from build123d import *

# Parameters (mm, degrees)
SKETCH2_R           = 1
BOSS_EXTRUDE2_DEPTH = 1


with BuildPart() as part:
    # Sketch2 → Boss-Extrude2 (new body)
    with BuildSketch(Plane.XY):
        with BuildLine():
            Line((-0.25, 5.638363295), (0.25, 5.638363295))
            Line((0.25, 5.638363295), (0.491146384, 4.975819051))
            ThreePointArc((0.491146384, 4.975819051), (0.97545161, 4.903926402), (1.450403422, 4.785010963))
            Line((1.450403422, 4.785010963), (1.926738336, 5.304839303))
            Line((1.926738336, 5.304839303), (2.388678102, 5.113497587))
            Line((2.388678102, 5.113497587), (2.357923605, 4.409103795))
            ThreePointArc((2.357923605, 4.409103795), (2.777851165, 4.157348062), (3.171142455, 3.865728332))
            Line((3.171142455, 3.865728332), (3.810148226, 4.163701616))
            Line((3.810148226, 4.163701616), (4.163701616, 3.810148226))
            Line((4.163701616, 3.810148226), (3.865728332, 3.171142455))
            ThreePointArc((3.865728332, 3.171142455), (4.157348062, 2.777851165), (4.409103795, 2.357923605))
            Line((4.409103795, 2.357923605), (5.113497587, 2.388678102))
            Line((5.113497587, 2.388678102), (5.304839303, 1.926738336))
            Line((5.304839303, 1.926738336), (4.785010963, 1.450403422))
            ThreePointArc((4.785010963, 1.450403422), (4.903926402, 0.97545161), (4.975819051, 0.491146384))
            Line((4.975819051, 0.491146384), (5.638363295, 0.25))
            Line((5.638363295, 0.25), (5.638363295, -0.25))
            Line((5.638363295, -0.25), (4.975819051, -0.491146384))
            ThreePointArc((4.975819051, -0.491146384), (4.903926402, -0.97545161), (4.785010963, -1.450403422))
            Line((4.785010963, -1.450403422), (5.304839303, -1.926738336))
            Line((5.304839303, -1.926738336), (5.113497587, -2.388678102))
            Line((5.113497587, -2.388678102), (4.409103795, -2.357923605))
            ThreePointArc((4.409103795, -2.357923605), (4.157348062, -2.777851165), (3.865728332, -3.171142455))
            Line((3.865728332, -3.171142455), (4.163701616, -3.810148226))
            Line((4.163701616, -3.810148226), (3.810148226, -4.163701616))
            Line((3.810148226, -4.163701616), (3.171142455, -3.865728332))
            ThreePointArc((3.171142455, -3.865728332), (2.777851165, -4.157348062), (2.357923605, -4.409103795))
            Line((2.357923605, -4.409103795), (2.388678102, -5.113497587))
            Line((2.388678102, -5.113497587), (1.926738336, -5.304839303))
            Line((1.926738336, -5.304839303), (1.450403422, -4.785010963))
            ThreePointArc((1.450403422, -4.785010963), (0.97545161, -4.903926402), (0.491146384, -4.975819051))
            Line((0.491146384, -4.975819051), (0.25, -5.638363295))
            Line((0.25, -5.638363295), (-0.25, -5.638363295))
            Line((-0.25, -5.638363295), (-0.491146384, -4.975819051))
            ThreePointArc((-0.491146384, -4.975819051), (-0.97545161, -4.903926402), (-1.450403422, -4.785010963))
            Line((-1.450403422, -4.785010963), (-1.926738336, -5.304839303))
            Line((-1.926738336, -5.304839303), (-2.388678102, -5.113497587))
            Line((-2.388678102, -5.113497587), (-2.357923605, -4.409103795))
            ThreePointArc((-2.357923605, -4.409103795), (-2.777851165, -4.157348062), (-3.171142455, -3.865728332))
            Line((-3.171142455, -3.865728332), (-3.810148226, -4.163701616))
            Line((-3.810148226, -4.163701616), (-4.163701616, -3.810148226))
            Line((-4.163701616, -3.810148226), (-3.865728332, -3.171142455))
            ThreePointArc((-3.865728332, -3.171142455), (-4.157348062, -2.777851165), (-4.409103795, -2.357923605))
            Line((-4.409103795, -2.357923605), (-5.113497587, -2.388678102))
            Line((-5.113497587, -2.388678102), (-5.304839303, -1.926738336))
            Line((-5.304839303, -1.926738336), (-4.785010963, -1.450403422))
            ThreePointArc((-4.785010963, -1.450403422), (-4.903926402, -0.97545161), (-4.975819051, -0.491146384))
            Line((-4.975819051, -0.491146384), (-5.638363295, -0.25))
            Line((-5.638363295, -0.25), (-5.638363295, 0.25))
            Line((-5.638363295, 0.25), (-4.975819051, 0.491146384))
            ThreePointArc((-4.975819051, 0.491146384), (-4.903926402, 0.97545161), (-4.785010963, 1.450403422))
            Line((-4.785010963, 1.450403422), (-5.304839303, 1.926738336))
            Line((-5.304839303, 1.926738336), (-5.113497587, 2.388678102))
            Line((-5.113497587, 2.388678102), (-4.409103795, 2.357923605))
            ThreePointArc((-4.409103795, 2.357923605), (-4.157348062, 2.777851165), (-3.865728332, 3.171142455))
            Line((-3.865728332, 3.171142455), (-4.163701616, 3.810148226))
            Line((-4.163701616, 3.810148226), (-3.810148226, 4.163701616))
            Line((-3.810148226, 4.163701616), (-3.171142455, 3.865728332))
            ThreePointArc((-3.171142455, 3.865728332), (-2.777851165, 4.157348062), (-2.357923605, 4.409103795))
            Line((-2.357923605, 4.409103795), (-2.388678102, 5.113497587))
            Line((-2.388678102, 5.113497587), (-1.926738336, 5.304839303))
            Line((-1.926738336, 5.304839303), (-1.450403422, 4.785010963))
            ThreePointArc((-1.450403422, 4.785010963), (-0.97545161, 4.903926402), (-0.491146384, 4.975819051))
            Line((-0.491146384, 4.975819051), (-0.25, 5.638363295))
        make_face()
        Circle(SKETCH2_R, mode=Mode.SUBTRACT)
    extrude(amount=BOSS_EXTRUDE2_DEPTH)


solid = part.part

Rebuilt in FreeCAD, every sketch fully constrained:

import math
import FreeCAD as App
import Part
import Sketcher
from FreeCAD import Vector
Q = App.Units.Quantity

doc = App.newDocument("Part")
params = doc.addObject("Spreadsheet::Sheet", "Params")
for row, (alias, value) in enumerate([
    ("sketch1_diameter", "2 mm"),
    ("sketch1_radius", "5 mm"),
    ("sketch1_width", "0.5 mm"),
    ("sketch1_length", "0.5 mm"),
    ("pad1_length", "1 mm"),
], start=1):
    params.set(f"A{row}", alias)
    params.set(f"B{row}", "=" + value)
    params.setAlias(f"B{row}", alias)

body = doc.addObject("PartDesign::Body", "Body")

sketch1 = doc.addObject("Sketcher::SketchObject", "Sketch")
body.addObject(sketch1)
sketch1.AttachmentSupport = (doc.XY_Plane, [""])
sketch1.MapMode = "FlatFace"
sketch1.addGeometry([
    Part.LineSegment(Vector(0.25, 5.64, 0), Vector(-0.25, 5.64, 0)),
    Part.LineSegment(Vector(-0.25, 5.64, 0), Vector(-0.49, 4.98, 0)),
    Part.ArcOfCircle(Part.Circle(Vector(0, 0, 0), Vector(0, 0, 1), 5), math.radians(95.64), math.radians(106.86)),
    Part.LineSegment(Vector(-1.45, 4.79, 0), Vector(-1.93, 5.3, 0)),
    Part.LineSegment(Vector(-1.93, 5.3, 0), Vector(-2.39, 5.11, 0)),
    Part.LineSegment(Vector(-2.39, 5.11, 0), Vector(-2.36, 4.41, 0)),
    Part.ArcOfCircle(Part.Circle(Vector(0, 0, 0), Vector(0, 0, 1), 5), math.radians(118.14), math.radians(129.36)),
    Part.LineSegment(Vector(-3.17, 3.87, 0), Vector(-3.81, 4.16, 0)),
    Part.LineSegment(Vector(-3.81, 4.16, 0), Vector(-4.16, 3.81, 0)),
    Part.LineSegment(Vector(-4.16, 3.81, 0), Vector(-3.87, 3.17, 0)),
    Part.ArcOfCircle(Part.Circle(Vector(0, 0, 0), Vector(0, 0, 1), 5), math.radians(140.64), math.radians(151.86)),
    Part.LineSegment(Vector(-4.41, 2.36, 0), Vector(-5.11, 2.39, 0)),
    Part.LineSegment(Vector(-5.11, 2.39, 0), Vector(-5.3, 1.93, 0)),
    Part.LineSegment(Vector(-5.3, 1.93, 0), Vector(-4.79, 1.45, 0)),
    Part.ArcOfCircle(Part.Circle(Vector(0, 0, 0), Vector(0, 0, 1), 5), math.radians(163.14), math.radians(174.36)),
    Part.LineSegment(Vector(-4.98, 0.49, 0), Vector(-5.64, 0.25, 0)),
    Part.LineSegment(Vector(-5.64, 0.25, 0), Vector(-5.64, -0.25, 0)),
    Part.LineSegment(Vector(-5.64, -0.25, 0), Vector(-4.98, -0.49, 0)),
    Part.ArcOfCircle(Part.Circle(Vector(0, 0, 0), Vector(0, 0, 1), 5), math.radians(-174.36), math.radians(-163.14)),
    Part.LineSegment(Vector(-4.79, -1.45, 0), Vector(-5.3, -1.93, 0)),
    Part.LineSegment(Vector(-5.3, -1.93, 0), Vector(-5.11, -2.39, 0)),
    Part.LineSegment(Vector(-5.11, -2.39, 0), Vector(-4.41, -2.36, 0)),
    Part.ArcOfCircle(Part.Circle(Vector(0, 0, 0), Vector(0, 0, 1), 5), math.radians(-151.86), math.radians(-140.64)),
    Part.LineSegment(Vector(-3.87, -3.17, 0), Vector(-4.16, -3.81, 0)),
    Part.LineSegment(Vector(-4.16, -3.81, 0), Vector(-3.81, -4.16, 0)),
    Part.LineSegment(Vector(-3.81, -4.16, 0), Vector(-3.17, -3.87, 0)),
    Part.ArcOfCircle(Part.Circle(Vector(0, 0, 0), Vector(0, 0, 1), 5), math.radians(-129.36), math.radians(-118.14)),
    Part.LineSegment(Vector(-2.36, -4.41, 0), Vector(-2.39, -5.11, 0)),
    Part.LineSegment(Vector(-2.39, -5.11, 0), Vector(-1.93, -5.3, 0)),
    Part.LineSegment(Vector(-1.93, -5.3, 0), Vector(-1.45, -4.79, 0)),
    Part.ArcOfCircle(Part.Circle(Vector(0, 0, 0), Vector(0, 0, 1), 5), math.radians(-106.86), math.radians(-95.64)),
    Part.LineSegment(Vector(-0.49, -4.98, 0), Vector(-0.25, -5.64, 0)),
    Part.LineSegment(Vector(-0.25, -5.64, 0), Vector(0.25, -5.64, 0)),
    Part.LineSegment(Vector(0.25, -5.64, 0), Vector(0.49, -4.98, 0)),
    Part.ArcOfCircle(Part.Circle(Vector(0, 0, 0), Vector(0, 0, 1), 5), math.radians(-84.36), math.radians(-73.14)),
    Part.LineSegment(Vector(1.45, -4.79, 0), Vector(1.93, -5.3, 0)),
    Part.LineSegment(Vector(1.93, -5.3, 0), Vector(2.39, -5.11, 0)),
    Part.LineSegment(Vector(2.39, -5.11, 0), Vector(2.36, -4.41, 0)),
    Part.ArcOfCircle(Part.Circle(Vector(0, 0, 0), Vector(0, 0, 1), 5), math.radians(-61.86), math.radians(-50.64)),
    Part.LineSegment(Vector(3.17, -3.87, 0), Vector(3.81, -4.16, 0)),
    Part.LineSegment(Vector(3.81, -4.16, 0), Vector(4.16, -3.81, 0)),
    Part.LineSegment(Vector(4.16, -3.81, 0), Vector(3.87, -3.17, 0)),
    Part.ArcOfCircle(Part.Circle(Vector(0, 0, 0), Vector(0, 0, 1), 5), math.radians(-39.36), math.radians(-28.14)),
    Part.LineSegment(Vector(4.41, -2.36, 0), Vector(5.11, -2.39, 0)),
    Part.LineSegment(Vector(5.11, -2.39, 0), Vector(5.3, -1.93, 0)),
    Part.LineSegment(Vector(5.3, -1.93, 0), Vector(4.79, -1.45, 0)),
    Part.ArcOfCircle(Part.Circle(Vector(0, 0, 0), Vector(0, 0, 1), 5), math.radians(-16.86), math.radians(-5.64)),
    Part.LineSegment(Vector(4.98, -0.49, 0), Vector(5.64, -0.25, 0)),
    Part.LineSegment(Vector(5.64, -0.25, 0), Vector(5.64, 0.25, 0)),
    Part.LineSegment(Vector(5.64, 0.25, 0), Vector(4.98, 0.49, 0)),
    Part.ArcOfCircle(Part.Circle(Vector(0, 0, 0), Vector(0, 0, 1), 5), math.radians(5.64), math.radians(16.86)),
    Part.LineSegment(Vector(4.79, 1.45, 0), Vector(5.3, 1.93, 0)),
    Part.LineSegment(Vector(5.3, 1.93, 0), Vector(5.11, 2.39, 0)),
    Part.LineSegment(Vector(5.11, 2.39, 0), Vector(4.41, 2.36, 0)),
    Part.ArcOfCircle(Part.Circle(Vector(0, 0, 0), Vector(0, 0, 1), 5), math.radians(28.14), math.radians(39.36)),
    Part.LineSegment(Vector(3.87, 3.17, 0), Vector(4.16, 3.81, 0)),
    Part.LineSegment(Vector(4.16, 3.81, 0), Vector(3.81, 4.16, 0)),
    Part.LineSegment(Vector(3.81, 4.16, 0), Vector(3.17, 3.87, 0)),
    Part.ArcOfCircle(Part.Circle(Vector(0, 0, 0), Vector(0, 0, 1), 5), math.radians(50.64), math.radians(61.86)),
    Part.LineSegment(Vector(2.36, 4.41, 0), Vector(2.39, 5.11, 0)),
    Part.LineSegment(Vector(2.39, 5.11, 0), Vector(1.93, 5.3, 0)),
    Part.LineSegment(Vector(1.93, 5.3, 0), Vector(1.45, 4.79, 0)),
    Part.ArcOfCircle(Part.Circle(Vector(0, 0, 0), Vector(0, 0, 1), 5), math.radians(73.14), math.radians(84.36)),
    Part.LineSegment(Vector(0.49, 4.98, 0), Vector(0.25, 5.64, 0)),
    Part.Circle(Vector(0, 0, 0), Vector(0, 0, 1), 1),
], False)
sketch1.addConstraint([
    Sketcher.Constraint("Coincident", 0, 2, 1, 1),
    Sketcher.Constraint("Coincident", 1, 2, 2, 1),
    Sketcher.Constraint("Coincident", 2, 2, 3, 1),
    Sketcher.Constraint("Coincident", 3, 2, 4, 1),
    Sketcher.Constraint("Coincident", 4, 2, 5, 1),
    Sketcher.Constraint("Coincident", 5, 2, 6, 1),
    Sketcher.Constraint("Coincident", 6, 2, 7, 1),
    Sketcher.Constraint("Coincident", 7, 2, 8, 1),
    Sketcher.Constraint("Coincident", 8, 2, 9, 1),
    Sketcher.Constraint("Coincident", 9, 2, 10, 1),
    Sketcher.Constraint("Coincident", 10, 2, 11, 1),
    Sketcher.Constraint("Coincident", 11, 2, 12, 1),
    Sketcher.Constraint("Coincident", 12, 2, 13, 1),
    Sketcher.Constraint("Coincident", 13, 2, 14, 1),
    Sketcher.Constraint("Coincident", 14, 2, 15, 1),
    Sketcher.Constraint("Coincident", 15, 2, 16, 1),
    Sketcher.Constraint("Coincident", 16, 2, 17, 1),
    Sketcher.Constraint("Coincident", 17, 2, 18, 1),
    Sketcher.Constraint("Coincident", 18, 2, 19, 1),
    Sketcher.Constraint("Coincident", 19, 2, 20, 1),
    Sketcher.Constraint("Coincident", 20, 2, 21, 1),
    Sketcher.Constraint("Coincident", 21, 2, 22, 1),
    Sketcher.Constraint("Coincident", 22, 2, 23, 1),
    Sketcher.Constraint("Coincident", 23, 2, 24, 1),
    Sketcher.Constraint("Coincident", 24, 2, 25, 1),
    Sketcher.Constraint("Coincident", 25, 2, 26, 1),
    Sketcher.Constraint("Coincident", 26, 2, 27, 1),
    Sketcher.Constraint("Coincident", 27, 2, 28, 1),
    Sketcher.Constraint("Coincident", 28, 2, 29, 1),
    Sketcher.Constraint("Coincident", 29, 2, 30, 1),
    Sketcher.Constraint("Coincident", 30, 2, 31, 1),
    Sketcher.Constraint("Coincident", 31, 2, 32, 1),
    Sketcher.Constraint("Coincident", 32, 2, 33, 1),
    Sketcher.Constraint("Coincident", 33, 2, 34, 1),
    Sketcher.Constraint("Coincident", 34, 2, 35, 1),
    Sketcher.Constraint("Coincident", 35, 2, 36, 1),
    Sketcher.Constraint("Coincident", 36, 2, 37, 1),
    Sketcher.Constraint("Coincident", 37, 2, 38, 1),
    Sketcher.Constraint("Coincident", 38, 2, 39, 1),
    Sketcher.Constraint("Coincident", 39, 2, 40, 1),
    Sketcher.Constraint("Coincident", 40, 2, 41, 1),
    Sketcher.Constraint("Coincident", 41, 2, 42, 1),
    Sketcher.Constraint("Coincident", 42, 2, 43, 1),
    Sketcher.Constraint("Coincident", 43, 2, 44, 1),
    Sketcher.Constraint("Coincident", 44, 2, 45, 1),
    Sketcher.Constraint("Coincident", 45, 2, 46, 1),
    Sketcher.Constraint("Coincident", 46, 2, 47, 1),
    Sketcher.Constraint("Coincident", 47, 2, 48, 1),
    Sketcher.Constraint("Coincident", 48, 2, 49, 1),
    Sketcher.Constraint("Coincident", 49, 2, 50, 1),
    Sketcher.Constraint("Coincident", 50, 2, 51, 1),
    Sketcher.Constraint("Coincident", 51, 2, 52, 1),
    Sketcher.Constraint("Coincident", 52, 2, 53, 1),
    Sketcher.Constraint("Coincident", 53, 2, 54, 1),
    Sketcher.Constraint("Coincident", 54, 2, 55, 1),
    Sketcher.Constraint("Coincident", 55, 2, 56, 1),
    Sketcher.Constraint("Coincident", 56, 2, 57, 1),
    Sketcher.Constraint("Coincident", 57, 2, 58, 1),
    Sketcher.Constraint("Coincident", 58, 2, 59, 1),
    Sketcher.Constraint("Coincident", 59, 2, 60, 1),
    Sketcher.Constraint("Coincident", 60, 2, 61, 1),
    Sketcher.Constraint("Coincident", 61, 2, 62, 1),
    Sketcher.Constraint("Coincident", 62, 2, 63, 1),
    Sketcher.Constraint("Coincident", 63, 2, 0, 1),
    Sketcher.Constraint("Horizontal", 0),
    Sketcher.Constraint("Vertical", 16),
    Sketcher.Constraint("Horizontal", 32),
    Sketcher.Constraint("Vertical", 48),
    Sketcher.Constraint("Coincident", 2, 3, -1, 1),
    Sketcher.Constraint("Coincident", 6, 3, -1, 1),
    Sketcher.Constraint("Coincident", 10, 3, -1, 1),
    Sketcher.Constraint("Coincident", 14, 3, -1, 1),
    Sketcher.Constraint("Coincident", 18, 3, -1, 1),
    Sketcher.Constraint("Coincident", 22, 3, -1, 1),
    Sketcher.Constraint("Coincident", 26, 3, -1, 1),
    Sketcher.Constraint("Coincident", 30, 3, -1, 1),
    Sketcher.Constraint("Coincident", 34, 3, -1, 1),
    Sketcher.Constraint("Coincident", 38, 3, -1, 1),
    Sketcher.Constraint("Coincident", 42, 3, -1, 1),
    Sketcher.Constraint("Coincident", 46, 3, -1, 1),
    Sketcher.Constraint("Coincident", 50, 3, -1, 1),
    Sketcher.Constraint("Coincident", 54, 3, -1, 1),
    Sketcher.Constraint("Coincident", 58, 3, -1, 1),
    Sketcher.Constraint("Coincident", 62, 3, -1, 1),
    Sketcher.Constraint("Coincident", 64, 3, -1, 1),
    Sketcher.Constraint("Equal", 2, 6),
    Sketcher.Constraint("Equal", 6, 10),
    Sketcher.Constraint("Equal", 10, 14),
    Sketcher.Constraint("Equal", 14, 18),
    Sketcher.Constraint("Equal", 18, 22),
    Sketcher.Constraint("Equal", 22, 26),
    Sketcher.Constraint("Equal", 26, 30),
    Sketcher.Constraint("Equal", 30, 34),
    Sketcher.Constraint("Equal", 34, 38),
    Sketcher.Constraint("Equal", 38, 42),
    Sketcher.Constraint("Equal", 42, 46),
    Sketcher.Constraint("Equal", 46, 50),
    Sketcher.Constraint("Equal", 50, 54),
    Sketcher.Constraint("Equal", 54, 58),
    Sketcher.Constraint("Equal", 58, 62),
    Sketcher.Constraint("Symmetric", 0, 2, 32, 2, -1, 1),
    Sketcher.Constraint("Symmetric", 3, 2, 35, 2, -1, 1),
    Sketcher.Constraint("Symmetric", 4, 2, 36, 2, -1, 1),
    Sketcher.Constraint("Symmetric", 7, 2, 39, 2, -1, 1),
    Sketcher.Constraint("Symmetric", 8, 2, 40, 2, -1, 1),
    Sketcher.Constraint("Symmetric", 11, 2, 43, 2, -1, 1),
    Sketcher.Constraint("Symmetric", 12, 2, 44, 2, -1, 1),
    Sketcher.Constraint("Symmetric", 15, 2, 47, 2, -1, 1),
    Sketcher.Constraint("Symmetric", 19, 2, 51, 2, -1, 1),
    Sketcher.Constraint("Symmetric", 20, 2, 52, 2, -1, 1),
    Sketcher.Constraint("Symmetric", 23, 2, 55, 2, -1, 1),
    Sketcher.Constraint("Symmetric", 24, 2, 56, 2, -1, 1),
    Sketcher.Constraint("Symmetric", 27, 2, 59, 2, -1, 1),
    Sketcher.Constraint("Symmetric", 28, 2, 60, 2, -1, 1),
    Sketcher.Constraint("Symmetric", 28, 2, 35, 2, -2),
    Sketcher.Constraint("Symmetric", 27, 2, 36, 2, -2),
    Sketcher.Constraint("Symmetric", 24, 2, 39, 2, -2),
    Sketcher.Constraint("Symmetric", 23, 2, 40, 2, -2),
    Sketcher.Constraint("Symmetric", 20, 2, 43, 2, -2),
    Sketcher.Constraint("Symmetric", 19, 2, 44, 2, -2),
    Sketcher.Constraint("Perpendicular", 1, 17),
    Sketcher.Constraint("Perpendicular", 3, 19),
    Sketcher.Constraint("Perpendicular", 4, 20),
    Sketcher.Constraint("Perpendicular", 5, 21),
    Sketcher.Constraint("Perpendicular", 7, 23),
    Sketcher.Constraint("Perpendicular", 8, 24),
    Sketcher.Constraint("Perpendicular", 9, 25),
    Sketcher.Constraint("Perpendicular", 11, 27),
    Sketcher.Constraint("Perpendicular", 13, 29),
    Sketcher.Constraint("Perpendicular", 15, 31),
    Sketcher.Constraint("Perpendicular", 17, 33),
    Sketcher.Constraint("Perpendicular", 19, 35),
    Sketcher.Constraint("Perpendicular", 21, 37),
    Sketcher.Constraint("Perpendicular", 23, 39),
    Sketcher.Constraint("Perpendicular", 25, 41),
    Sketcher.Constraint("Perpendicular", 27, 43),
    Sketcher.Constraint("Perpendicular", 29, 45),
    Sketcher.Constraint("Perpendicular", 31, 47),
    Sketcher.Constraint("Perpendicular", 33, 49),
    Sketcher.Constraint("Perpendicular", 35, 51),
    Sketcher.Constraint("Perpendicular", 37, 53),
    Sketcher.Constraint("Perpendicular", 39, 55),
    Sketcher.Constraint("Perpendicular", 41, 57),
    Sketcher.Constraint("Perpendicular", 43, 59),
    Sketcher.Constraint("Perpendicular", 45, 61),
    Sketcher.Constraint("Perpendicular", 47, 63),
    Sketcher.Constraint("Horizontal", 30, 2, 33, 2),
    Sketcher.Constraint("Horizontal", 29, 2, 34, 2),
    Sketcher.Constraint("Horizontal", 26, 2, 37, 2),
    Sketcher.Constraint("Horizontal", 25, 2, 38, 2),
    Sketcher.Constraint("Horizontal", 17, 2, 46, 2),
    Sketcher.Constraint("Horizontal", 16, 2, 47, 2),
    Sketcher.Constraint("Horizontal", 15, 2, 48, 2),
    Sketcher.Constraint("Horizontal", 1, 2, 62, 2),
    Sketcher.Constraint("Equal", 32, 16),
    Sketcher.Constraint("Equal", 1, 3),
    Sketcher.Constraint("Equal", 3, 5),
    Sketcher.Constraint("Equal", 5, 7),
    Sketcher.Constraint("Equal", 4, 8),
    Sketcher.Constraint("Equal", 7, 9),
    Sketcher.Constraint("Equal", 9, 11),
    Sketcher.Constraint("Equal", 8, 12),
    Sketcher.Constraint("Equal", 11, 13),
    Sketcher.Constraint("Equal", 13, 15),
    Sketcher.Constraint("Diameter", 64, 2.0),
    Sketcher.Constraint("Radius", 2, 5.0),
    Sketcher.Constraint("Angle", 1, Q("-110 deg")),
    Sketcher.Constraint("Angle", 7, Q("155 deg")),
    Sketcher.Constraint("DistanceX", 0, 2, 0, 1, 0.5),
    Sketcher.Constraint("Angle", 3, Q("132.5 deg")),
    Sketcher.Constraint("Angle", 4, Q("-157.5 deg")),
    Sketcher.Constraint("Angle", 5, Q("-87.5 deg")),
    Sketcher.Constraint("Distance", 4, 0.5),
    Sketcher.Constraint("DistanceY", -1, 1, 7, 2, 4.163702),
])
sketch1.setExpression("Constraints[164]", "Params.sketch1_diameter")
sketch1.setExpression("Constraints[165]", "Params.sketch1_radius")
sketch1.setExpression("Constraints[168]", "Params.sketch1_width")
sketch1.setExpression("Constraints[172]", "Params.sketch1_length")
pad1 = doc.addObject("PartDesign::Pad", "Pad")
body.addObject(pad1)
pad1.Profile = sketch1
pad1.setExpression("Length", "Params.pad1_length")

doc.recompute()
